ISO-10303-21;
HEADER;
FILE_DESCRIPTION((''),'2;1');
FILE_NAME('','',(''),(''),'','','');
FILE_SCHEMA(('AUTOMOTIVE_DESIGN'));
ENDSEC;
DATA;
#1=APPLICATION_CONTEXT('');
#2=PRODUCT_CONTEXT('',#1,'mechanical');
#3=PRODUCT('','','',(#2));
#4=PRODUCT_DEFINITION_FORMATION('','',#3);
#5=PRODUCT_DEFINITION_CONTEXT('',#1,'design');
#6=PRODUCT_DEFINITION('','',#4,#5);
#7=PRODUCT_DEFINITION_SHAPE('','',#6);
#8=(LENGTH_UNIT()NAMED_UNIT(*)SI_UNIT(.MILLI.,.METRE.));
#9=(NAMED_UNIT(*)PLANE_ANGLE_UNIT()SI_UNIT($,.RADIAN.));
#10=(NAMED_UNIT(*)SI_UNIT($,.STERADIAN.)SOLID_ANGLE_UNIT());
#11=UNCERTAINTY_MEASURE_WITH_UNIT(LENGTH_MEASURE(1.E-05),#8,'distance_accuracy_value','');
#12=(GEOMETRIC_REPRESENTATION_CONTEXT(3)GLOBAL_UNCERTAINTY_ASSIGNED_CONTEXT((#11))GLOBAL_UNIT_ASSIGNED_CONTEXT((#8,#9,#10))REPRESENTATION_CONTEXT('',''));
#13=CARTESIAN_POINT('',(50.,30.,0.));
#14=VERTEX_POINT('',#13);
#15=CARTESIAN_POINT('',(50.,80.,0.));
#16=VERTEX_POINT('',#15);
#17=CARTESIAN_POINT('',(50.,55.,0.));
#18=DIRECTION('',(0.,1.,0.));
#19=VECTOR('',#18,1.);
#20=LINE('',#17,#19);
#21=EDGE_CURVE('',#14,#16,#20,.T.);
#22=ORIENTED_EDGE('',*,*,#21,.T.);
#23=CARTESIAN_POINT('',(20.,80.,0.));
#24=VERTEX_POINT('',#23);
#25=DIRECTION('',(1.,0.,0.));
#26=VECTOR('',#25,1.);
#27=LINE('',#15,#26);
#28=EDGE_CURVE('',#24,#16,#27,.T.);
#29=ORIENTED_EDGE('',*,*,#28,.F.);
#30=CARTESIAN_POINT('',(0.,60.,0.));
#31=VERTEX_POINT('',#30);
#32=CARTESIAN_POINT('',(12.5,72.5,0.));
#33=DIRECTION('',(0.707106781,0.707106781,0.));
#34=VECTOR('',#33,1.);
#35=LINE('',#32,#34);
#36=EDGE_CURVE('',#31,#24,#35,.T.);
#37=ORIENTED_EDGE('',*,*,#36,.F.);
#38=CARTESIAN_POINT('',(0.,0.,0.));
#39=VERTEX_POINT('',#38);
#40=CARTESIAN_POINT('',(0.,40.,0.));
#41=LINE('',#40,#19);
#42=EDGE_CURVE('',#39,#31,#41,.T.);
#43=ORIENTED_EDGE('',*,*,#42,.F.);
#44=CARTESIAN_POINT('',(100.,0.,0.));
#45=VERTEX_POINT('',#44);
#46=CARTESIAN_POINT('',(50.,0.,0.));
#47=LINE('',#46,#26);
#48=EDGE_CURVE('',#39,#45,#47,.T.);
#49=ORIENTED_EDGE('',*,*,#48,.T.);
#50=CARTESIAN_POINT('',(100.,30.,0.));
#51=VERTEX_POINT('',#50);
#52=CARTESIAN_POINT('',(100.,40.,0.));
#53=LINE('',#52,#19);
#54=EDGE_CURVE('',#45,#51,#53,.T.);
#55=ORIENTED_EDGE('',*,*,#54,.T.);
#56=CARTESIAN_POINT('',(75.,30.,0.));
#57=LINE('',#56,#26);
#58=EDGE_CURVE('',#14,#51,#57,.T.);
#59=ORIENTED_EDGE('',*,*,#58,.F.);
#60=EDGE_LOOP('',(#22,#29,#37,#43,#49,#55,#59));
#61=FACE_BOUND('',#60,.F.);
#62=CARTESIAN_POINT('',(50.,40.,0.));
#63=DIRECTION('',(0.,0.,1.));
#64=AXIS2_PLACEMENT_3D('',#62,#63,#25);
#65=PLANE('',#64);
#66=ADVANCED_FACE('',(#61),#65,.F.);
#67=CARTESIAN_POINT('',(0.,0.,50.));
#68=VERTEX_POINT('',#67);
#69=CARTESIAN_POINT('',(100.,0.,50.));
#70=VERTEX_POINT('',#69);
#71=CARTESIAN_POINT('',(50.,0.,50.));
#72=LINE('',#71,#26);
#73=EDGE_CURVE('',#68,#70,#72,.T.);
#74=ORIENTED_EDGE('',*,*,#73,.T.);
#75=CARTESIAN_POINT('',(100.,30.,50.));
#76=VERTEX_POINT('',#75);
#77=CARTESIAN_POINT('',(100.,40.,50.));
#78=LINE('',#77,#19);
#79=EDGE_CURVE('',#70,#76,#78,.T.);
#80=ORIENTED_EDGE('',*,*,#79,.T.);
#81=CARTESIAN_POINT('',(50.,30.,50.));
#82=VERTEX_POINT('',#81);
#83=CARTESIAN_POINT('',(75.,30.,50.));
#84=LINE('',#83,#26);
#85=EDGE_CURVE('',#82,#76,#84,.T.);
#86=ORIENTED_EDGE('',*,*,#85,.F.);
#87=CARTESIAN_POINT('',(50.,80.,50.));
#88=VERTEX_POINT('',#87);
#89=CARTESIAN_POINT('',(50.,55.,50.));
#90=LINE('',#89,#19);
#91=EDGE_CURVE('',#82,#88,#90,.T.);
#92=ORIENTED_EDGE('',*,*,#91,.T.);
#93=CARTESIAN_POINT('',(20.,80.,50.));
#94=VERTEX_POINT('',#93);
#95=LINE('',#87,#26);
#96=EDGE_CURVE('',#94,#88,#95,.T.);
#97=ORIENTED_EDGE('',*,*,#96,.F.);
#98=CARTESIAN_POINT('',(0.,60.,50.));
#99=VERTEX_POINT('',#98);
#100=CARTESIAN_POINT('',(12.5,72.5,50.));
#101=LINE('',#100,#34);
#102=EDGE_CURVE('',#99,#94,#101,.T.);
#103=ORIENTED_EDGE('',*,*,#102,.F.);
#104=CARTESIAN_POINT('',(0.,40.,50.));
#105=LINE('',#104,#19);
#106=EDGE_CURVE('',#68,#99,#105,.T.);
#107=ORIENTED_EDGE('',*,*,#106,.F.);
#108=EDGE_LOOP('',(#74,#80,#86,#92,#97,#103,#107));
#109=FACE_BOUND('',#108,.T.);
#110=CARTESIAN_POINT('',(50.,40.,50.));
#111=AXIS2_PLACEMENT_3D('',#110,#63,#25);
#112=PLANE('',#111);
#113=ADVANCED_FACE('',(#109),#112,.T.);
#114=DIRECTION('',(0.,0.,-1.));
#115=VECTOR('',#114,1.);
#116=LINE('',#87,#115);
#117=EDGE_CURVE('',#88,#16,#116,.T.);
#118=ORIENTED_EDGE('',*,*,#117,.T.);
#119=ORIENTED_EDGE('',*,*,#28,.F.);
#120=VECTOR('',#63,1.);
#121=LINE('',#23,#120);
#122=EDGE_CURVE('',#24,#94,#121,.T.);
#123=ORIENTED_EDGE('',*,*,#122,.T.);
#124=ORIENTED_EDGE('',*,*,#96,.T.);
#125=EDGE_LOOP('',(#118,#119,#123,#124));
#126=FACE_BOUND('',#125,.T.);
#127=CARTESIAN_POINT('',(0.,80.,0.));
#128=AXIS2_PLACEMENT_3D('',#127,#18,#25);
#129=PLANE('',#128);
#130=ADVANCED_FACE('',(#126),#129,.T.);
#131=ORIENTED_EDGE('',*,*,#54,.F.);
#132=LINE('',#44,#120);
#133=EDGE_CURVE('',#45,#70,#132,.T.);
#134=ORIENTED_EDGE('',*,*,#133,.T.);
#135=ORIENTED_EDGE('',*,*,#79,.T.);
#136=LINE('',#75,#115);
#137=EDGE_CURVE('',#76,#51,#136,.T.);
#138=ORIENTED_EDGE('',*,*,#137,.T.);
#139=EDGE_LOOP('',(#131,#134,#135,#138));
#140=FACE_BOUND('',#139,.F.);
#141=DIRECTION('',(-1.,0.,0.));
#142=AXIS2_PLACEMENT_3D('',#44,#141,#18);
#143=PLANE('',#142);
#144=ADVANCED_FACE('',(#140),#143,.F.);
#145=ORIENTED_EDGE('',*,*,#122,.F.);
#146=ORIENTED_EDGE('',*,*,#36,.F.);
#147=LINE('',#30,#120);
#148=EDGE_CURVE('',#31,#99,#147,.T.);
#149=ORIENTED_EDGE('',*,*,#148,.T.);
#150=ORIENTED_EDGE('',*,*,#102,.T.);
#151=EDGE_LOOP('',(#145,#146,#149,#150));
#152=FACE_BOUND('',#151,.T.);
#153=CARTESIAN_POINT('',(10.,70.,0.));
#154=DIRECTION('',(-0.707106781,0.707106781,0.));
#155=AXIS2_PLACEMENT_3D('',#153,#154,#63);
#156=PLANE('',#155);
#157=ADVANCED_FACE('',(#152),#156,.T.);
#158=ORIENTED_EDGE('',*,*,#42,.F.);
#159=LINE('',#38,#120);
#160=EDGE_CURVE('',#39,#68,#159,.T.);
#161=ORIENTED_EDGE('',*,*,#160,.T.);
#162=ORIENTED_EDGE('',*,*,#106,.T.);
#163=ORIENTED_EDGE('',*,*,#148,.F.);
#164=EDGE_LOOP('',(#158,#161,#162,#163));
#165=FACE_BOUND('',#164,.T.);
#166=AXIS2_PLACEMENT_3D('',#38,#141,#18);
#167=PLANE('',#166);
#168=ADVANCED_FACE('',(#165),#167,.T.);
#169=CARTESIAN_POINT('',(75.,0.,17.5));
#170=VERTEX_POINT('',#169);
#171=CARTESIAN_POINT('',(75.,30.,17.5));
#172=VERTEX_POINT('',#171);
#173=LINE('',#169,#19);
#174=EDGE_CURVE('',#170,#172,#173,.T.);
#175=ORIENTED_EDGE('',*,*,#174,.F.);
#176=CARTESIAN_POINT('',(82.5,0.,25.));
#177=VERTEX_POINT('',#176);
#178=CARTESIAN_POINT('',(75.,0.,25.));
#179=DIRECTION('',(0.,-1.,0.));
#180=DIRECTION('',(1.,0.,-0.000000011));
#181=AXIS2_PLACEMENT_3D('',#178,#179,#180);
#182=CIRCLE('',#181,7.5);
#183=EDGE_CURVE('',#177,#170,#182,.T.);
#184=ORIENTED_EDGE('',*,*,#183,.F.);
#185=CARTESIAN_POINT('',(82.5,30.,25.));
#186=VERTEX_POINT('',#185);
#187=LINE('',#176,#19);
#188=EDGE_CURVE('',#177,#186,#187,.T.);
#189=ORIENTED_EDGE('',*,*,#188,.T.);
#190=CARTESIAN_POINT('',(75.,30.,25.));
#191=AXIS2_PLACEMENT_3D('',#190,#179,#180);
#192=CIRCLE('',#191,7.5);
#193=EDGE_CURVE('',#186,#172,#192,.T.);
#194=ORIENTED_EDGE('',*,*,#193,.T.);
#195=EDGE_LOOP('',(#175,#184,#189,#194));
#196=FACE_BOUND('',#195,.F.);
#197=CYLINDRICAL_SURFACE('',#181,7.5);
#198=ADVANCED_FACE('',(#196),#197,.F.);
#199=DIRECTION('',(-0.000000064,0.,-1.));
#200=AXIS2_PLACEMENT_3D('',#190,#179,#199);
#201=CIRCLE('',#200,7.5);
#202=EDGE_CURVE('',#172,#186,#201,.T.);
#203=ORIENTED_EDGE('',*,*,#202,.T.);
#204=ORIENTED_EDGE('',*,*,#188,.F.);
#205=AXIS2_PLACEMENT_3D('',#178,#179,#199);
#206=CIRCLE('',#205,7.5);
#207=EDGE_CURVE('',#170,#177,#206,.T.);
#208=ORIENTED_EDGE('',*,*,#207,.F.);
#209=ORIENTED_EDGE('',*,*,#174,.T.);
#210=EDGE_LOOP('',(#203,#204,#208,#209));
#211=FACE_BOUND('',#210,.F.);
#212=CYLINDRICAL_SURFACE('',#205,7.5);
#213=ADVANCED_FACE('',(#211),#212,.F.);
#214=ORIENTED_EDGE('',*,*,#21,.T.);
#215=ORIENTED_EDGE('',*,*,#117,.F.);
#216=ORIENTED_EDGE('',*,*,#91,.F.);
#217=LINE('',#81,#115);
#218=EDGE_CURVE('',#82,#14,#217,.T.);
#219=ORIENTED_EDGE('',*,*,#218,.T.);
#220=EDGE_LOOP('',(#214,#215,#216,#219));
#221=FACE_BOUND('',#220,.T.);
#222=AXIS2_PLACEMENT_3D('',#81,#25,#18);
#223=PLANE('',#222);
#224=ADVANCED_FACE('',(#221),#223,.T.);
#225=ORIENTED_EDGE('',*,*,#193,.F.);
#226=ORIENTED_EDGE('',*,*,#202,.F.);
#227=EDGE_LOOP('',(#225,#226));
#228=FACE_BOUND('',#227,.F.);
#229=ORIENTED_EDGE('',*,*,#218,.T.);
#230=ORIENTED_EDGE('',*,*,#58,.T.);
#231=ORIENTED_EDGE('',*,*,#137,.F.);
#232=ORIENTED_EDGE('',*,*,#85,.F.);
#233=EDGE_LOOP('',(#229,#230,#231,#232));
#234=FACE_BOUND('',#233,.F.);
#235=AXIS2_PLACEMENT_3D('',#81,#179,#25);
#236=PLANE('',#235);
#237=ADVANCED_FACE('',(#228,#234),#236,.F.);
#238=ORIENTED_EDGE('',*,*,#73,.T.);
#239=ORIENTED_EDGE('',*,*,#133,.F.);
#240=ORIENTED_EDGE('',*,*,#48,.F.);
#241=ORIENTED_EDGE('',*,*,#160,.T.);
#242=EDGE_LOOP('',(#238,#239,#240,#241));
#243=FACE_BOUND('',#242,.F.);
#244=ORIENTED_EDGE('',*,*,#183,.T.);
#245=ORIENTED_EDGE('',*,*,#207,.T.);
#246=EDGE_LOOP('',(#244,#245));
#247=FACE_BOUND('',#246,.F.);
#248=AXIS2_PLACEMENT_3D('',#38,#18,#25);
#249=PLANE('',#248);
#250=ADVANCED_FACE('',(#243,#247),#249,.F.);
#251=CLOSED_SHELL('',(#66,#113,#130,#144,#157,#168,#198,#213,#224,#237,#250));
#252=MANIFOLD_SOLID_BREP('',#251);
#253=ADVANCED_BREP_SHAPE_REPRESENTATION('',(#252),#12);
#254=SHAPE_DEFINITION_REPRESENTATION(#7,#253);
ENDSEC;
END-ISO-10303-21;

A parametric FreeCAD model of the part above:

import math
import FreeCAD as App
import Part
import Sketcher

V = App.Vector
Q = App.Units.Quantity


def edges_at(feature, points):
    """Names of the edges that pass closest to the given points."""
    edges = feature.Shape.Edges
    near = lambda p: min(range(len(edges)), key=lambda i: edges[i].distToShape(Part.Vertex(*p))[0])
    return sorted({f"Edge{near(p) + 1}" for p in points})

doc = App.newDocument("Part")
body = doc.addObject("PartDesign::Body", "Body")

# Sketch on XY plane
sketch1 = body.newObject("Sketcher::SketchObject", "Sketch")
sketch1.AttachmentSupport = (doc.getObject("XY_Plane"), [""])
sketch1.MapMode = "FlatFace"
sketch1.addGeometry([
    Part.LineSegment(V(0, 80, 0), V(0, 0, 0)),
    Part.LineSegment(V(0, 0, 0), V(100, 0, 0)),
    Part.LineSegment(V(100, 0, 0), V(100, 80, 0)),
    Part.LineSegment(V(100, 80, 0), V(0, 80, 0)),
], False)
sketch1.addConstraint([
    Sketcher.Constraint("Coincident", 0, 2, 1, 1),
    Sketcher.Constraint("Coincident", 1, 2, 2, 1),
    Sketcher.Constraint("Coincident", 2, 2, 3, 1),
    Sketcher.Constraint("Coincident", 3, 2, 0, 1),
    Sketcher.Constraint("Vertical", 0),
    Sketcher.Constraint("Horizontal", 1),
    Sketcher.Constraint("Vertical", 2),
    Sketcher.Constraint("Horizontal", 3),
    Sketcher.Constraint("Coincident", 0, 2, -1, 1),
    Sketcher.Constraint("DistanceX", 1, 1, 1, 2, Q("100 mm")),
    Sketcher.Constraint("DistanceY", 0, 2, 0, 1, Q("80 mm")),
])
pad1 = body.newObject("PartDesign::Pad", "Pad")
pad1.Profile = sketch1
pad1.Length = 50

# Sketch on XY plane
sketch2 = body.newObject("Sketcher::SketchObject", "Sketch001")
sketch2.AttachmentSupport = (doc.getObject("XY_Plane"), [""])
sketch2.MapMode = "FlatFace"
sketch2.AttachmentOffset = App.Placement(V(0, 0, 50), App.Rotation())
sketch2.addGeometry([
    Part.LineSegment(V(50, 80, 0), V(50, 30, 0)),
    Part.LineSegment(V(50, 30, 0), V(100, 30, 0)),
    Part.LineSegment(V(100, 30, 0), V(100, 80, 0)),
    Part.LineSegment(V(100, 80, 0), V(50, 80, 0)),
], False)
sketch2.addConstraint([
    Sketcher.Constraint("Coincident", 0, 2, 1, 1),
    Sketcher.Constraint("Coincident", 1, 2, 2, 1),
    Sketcher.Constraint("Coincident", 2, 2, 3, 1),
    Sketcher.Constraint("Coincident", 3, 2, 0, 1),
    Sketcher.Constraint("Vertical", 0),
    Sketcher.Constraint("Horizontal", 1),
    Sketcher.Constraint("Vertical", 2),
    Sketcher.Constraint("Horizontal", 3),
    Sketcher.Constraint("Equal", 3, 0),
    Sketcher.Constraint("DistanceX", 1, 1, 1, 2, Q("50 mm")),
    Sketcher.Constraint("DistanceX", -1, 1, 0, 2, Q("50 mm")),
    Sketcher.Constraint("DistanceY", -1, 1, 0, 2, Q("30 mm")),
])
pocket1 = body.newObject("PartDesign::Pocket", "Pocket")
pocket1.Profile = sketch2
pocket1.Type = "ThroughAll"
doc.recompute()

chamfer = body.newObject("PartDesign::Chamfer", "Chamfer")
chamfer.Base = (pocket1, edges_at(pocket1, [(0, 80, 25)]))
chamfer.Size = 20

# Sketch on XZ plane
sketch3 = body.newObject("Sketcher::SketchObject", "Sketch002")
sketch3.AttachmentSupport = (doc.getObject("XZ_Plane"), [""])
sketch3.MapMode = "FlatFace"
sketch3.addGeometry([
    Part.ArcOfCircle(Part.Circle(V(75, 25, 0), V(0, 0, 1), 8), math.radians(0), math.radians(270)),
    Part.ArcOfCircle(Part.Circle(V(75, 25, 0), V(0, 0, 1), 7), math.radians(-90), math.radians(0)),
], False)
sketch3.addConstraint([
    Sketcher.Constraint("Tangent", 0, 1, 1, 2),
    Sketcher.Constraint("Coincident", 1, 1, 0, 2),
    Sketcher.Constraint("Horizontal", 1, 3, 0, 1),
    Sketcher.Constraint("Vertical", 0, 3, 1, 1),
    Sketcher.Constraint("Radius", 0, Q("7.5 mm")),
    Sketcher.Constraint("DistanceX", -1, 1, 0, 3, Q("75 mm")),
    Sketcher.Constraint("DistanceY", -1, 1, 0, 3, Q("25 mm")),
])
pocket2 = body.newObject("PartDesign::Pocket", "Pocket001")
pocket2.Profile = sketch3
pocket2.Type = "ThroughAll"

doc.recompute()
